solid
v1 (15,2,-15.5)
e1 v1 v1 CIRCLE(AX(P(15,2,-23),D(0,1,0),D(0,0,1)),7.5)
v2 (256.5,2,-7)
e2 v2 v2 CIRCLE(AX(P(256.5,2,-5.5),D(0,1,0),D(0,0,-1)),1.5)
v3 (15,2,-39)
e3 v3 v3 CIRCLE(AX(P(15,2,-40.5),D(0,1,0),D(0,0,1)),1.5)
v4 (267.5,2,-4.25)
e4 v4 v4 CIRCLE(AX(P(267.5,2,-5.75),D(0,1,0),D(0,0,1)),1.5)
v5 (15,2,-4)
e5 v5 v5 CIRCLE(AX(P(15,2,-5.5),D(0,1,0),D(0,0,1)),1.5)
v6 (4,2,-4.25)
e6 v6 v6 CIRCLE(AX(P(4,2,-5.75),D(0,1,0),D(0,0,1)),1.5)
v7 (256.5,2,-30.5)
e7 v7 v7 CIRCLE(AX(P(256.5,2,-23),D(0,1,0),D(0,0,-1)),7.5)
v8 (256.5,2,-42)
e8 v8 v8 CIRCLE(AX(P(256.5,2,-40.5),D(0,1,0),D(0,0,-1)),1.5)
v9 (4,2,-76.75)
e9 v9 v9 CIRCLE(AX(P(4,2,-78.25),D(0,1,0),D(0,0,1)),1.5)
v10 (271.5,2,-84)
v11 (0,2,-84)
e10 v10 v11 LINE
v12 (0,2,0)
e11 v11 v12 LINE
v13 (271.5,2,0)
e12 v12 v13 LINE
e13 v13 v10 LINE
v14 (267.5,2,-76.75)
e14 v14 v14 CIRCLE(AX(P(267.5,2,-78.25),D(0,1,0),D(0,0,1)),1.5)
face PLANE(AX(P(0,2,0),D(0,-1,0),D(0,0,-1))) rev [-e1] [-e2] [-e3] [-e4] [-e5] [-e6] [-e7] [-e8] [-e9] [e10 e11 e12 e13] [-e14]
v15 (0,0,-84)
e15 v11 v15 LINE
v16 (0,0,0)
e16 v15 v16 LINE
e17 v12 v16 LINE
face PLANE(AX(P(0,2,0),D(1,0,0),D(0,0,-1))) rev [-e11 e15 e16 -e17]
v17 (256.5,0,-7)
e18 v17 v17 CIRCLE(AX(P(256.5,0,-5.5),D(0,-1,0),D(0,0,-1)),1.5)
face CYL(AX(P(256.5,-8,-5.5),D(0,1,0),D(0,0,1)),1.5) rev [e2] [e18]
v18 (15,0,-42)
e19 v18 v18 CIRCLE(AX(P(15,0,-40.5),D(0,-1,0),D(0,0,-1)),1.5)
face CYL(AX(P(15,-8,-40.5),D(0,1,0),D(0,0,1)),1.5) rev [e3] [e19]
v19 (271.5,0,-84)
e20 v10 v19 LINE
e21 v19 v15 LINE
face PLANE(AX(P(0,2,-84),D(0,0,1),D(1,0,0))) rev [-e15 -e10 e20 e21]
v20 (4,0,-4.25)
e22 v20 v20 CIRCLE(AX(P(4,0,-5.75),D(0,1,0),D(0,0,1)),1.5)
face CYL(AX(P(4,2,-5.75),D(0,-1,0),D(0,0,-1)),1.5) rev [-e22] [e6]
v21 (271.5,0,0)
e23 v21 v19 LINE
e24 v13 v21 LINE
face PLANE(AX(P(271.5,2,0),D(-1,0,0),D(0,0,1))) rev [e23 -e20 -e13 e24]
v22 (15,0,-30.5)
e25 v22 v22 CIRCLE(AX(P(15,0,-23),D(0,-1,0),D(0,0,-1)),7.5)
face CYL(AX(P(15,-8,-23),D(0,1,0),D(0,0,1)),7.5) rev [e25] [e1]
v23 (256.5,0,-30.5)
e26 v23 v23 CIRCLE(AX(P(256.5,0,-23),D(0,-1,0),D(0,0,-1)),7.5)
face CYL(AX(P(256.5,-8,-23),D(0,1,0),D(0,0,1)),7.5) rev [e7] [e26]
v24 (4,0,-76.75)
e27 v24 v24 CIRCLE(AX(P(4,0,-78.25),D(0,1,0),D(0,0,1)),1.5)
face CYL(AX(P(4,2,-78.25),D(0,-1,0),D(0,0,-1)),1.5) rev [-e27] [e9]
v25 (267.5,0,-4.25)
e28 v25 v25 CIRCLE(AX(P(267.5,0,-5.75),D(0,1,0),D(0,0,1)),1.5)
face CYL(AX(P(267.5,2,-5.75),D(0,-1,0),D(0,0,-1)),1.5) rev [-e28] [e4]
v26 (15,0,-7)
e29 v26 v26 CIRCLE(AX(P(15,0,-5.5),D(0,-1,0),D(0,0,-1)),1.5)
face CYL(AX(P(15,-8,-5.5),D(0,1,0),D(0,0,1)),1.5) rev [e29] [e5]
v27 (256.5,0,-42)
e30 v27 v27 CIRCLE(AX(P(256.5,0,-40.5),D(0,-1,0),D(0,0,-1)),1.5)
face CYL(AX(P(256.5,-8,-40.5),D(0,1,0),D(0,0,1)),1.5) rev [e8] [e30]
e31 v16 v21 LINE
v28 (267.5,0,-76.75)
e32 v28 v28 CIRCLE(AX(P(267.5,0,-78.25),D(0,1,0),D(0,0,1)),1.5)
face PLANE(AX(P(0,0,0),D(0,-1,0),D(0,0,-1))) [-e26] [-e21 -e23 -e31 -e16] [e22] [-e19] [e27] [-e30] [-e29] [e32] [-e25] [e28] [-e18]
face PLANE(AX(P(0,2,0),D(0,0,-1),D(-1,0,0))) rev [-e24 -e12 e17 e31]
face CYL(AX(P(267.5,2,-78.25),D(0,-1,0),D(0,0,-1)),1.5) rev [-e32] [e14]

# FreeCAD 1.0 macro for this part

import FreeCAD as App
import Part
import Sketcher


def add_polygon(sketch, points):
    """Adds a closed chain of lines whose ends are joined by coincident constraints."""
    first, n = sketch.GeometryCount, len(points)
    for a, b in zip(points, points[1:] + points[:1]):
        sketch.addGeometry(Part.LineSegment(App.Vector(*a, 0), App.Vector(*b, 0)), False)
    for i in range(n):
        sketch.addConstraint(Sketcher.Constraint("Coincident", first + i, 2, first + (i + 1) % n, 1))

doc = App.newDocument("Part")
body = doc.addObject("PartDesign::Body", "Body")

sketch1 = body.newObject("Sketcher::SketchObject", "Sketch")
sketch1.AttachmentSupport = (doc.getObject("XZ_Plane"), [""])
sketch1.MapMode = "FlatFace"
add_polygon(sketch1, [(0, -84), (0, 0), (271.5, 0), (271.5, -84)])
sketch1.addGeometry(Part.Circle(App.Vector(4, -5.75, 0), App.Vector(0, 0, 1), 1.5), False)
sketch1.addGeometry(Part.Circle(App.Vector(267.5, -5.75, 0), App.Vector(0, 0, 1), 1.5), False)
sketch1.addGeometry(Part.Circle(App.Vector(4, -78.25, 0), App.Vector(0, 0, 1), 1.5), False)
sketch1.addGeometry(Part.Circle(App.Vector(267.5, -78.25, 0), App.Vector(0, 0, 1), 1.5), False)
sketch1.addConstraint([
    Sketcher.Constraint("Vertical", 0),
    Sketcher.Constraint("Horizontal", 1),
    Sketcher.Constraint("Vertical", 2),
    Sketcher.Constraint("Horizontal", 3),
    Sketcher.Constraint("Coincident", 0, 2, -1, 1),
    Sketcher.Constraint("Equal", 4, 5),
    Sketcher.Constraint("Equal", 5, 6),
    Sketcher.Constraint("Equal", 6, 7),
    Sketcher.Constraint("Horizontal", 4, 3, 5, 3),
    Sketcher.Constraint("Horizontal", 6, 3, 7, 3),
    Sketcher.Constraint("Vertical", 4, 3, 6, 3),
    Sketcher.Constraint("Vertical", 5, 3, 7, 3),
    Sketcher.Constraint("Diameter", 4, 3.0),
    Sketcher.Constraint("DistanceY", 0, 1, 0, 2, 84.0),
    Sketcher.Constraint("DistanceX", 1, 1, 1, 2, 271.5),
    Sketcher.Constraint("DistanceX", -1, 1, 4, 3, 4.0),
    Sketcher.Constraint("DistanceX", 5, 3, 1, 2, 4.0),
    Sketcher.Constraint("DistanceY", 6, 3, 4, 3, 72.5),
    Sketcher.Constraint("DistanceY", 4, 3, -1, 1, 5.75),
])
pad1 = body.newObject("PartDesign::Pad", "Pad")
pad1.Profile = sketch1
pad1.Length = 2
pad1.Reversed = True

sketch2 = body.newObject("Sketcher::SketchObject", "Sketch001")
sketch2.AttachmentSupport = (doc.getObject("XZ_Plane"), [""])
sketch2.MapMode = "FlatFace"
sketch2.AttachmentOffset = App.Placement(App.Vector(0, 0, -2), App.Rotation())
sketch2.addGeometry([
    Part.Circle(App.Vector(15, -5.5, 0), App.Vector(0, 0, 1), 1.5),
    Part.Circle(App.Vector(15, -40.5, 0), App.Vector(0, 0, 1), 1.5),
    Part.Circle(App.Vector(15, -23, 0), App.Vector(0, 0, 1), 7.5),
    Part.Circle(App.Vector(256.5, -23, 0), App.Vector(0, 0, 1), 7.5),
    Part.Circle(App.Vector(256.5, -40.5, 0), App.Vector(0, 0, 1), 1.5),
    Part.Circle(App.Vector(256.5, -5.5, 0), App.Vector(0, 0, 1), 1.5),
], False)
sketch2.addConstraint([
    Sketcher.Constraint("Equal", 0, 1),
    Sketcher.Constraint("Equal", 2, 3),
    Sketcher.Constraint("Equal", 1, 4),
    Sketcher.Constraint("Equal", 4, 5),
    Sketcher.Constraint("Horizontal", 2, 3, 3, 3),
    Sketcher.Constraint("Horizontal", 1, 3, 4, 3),
    Sketcher.Constraint("Horizontal", 0, 3, 5, 3),
    Sketcher.Constraint("Vertical", 0, 3, 1, 3),
    Sketcher.Constraint("Vertical", 1, 3, 2, 3),
    Sketcher.Constraint("Vertical", 3, 3, 4, 3),
    Sketcher.Constraint("Vertical", 4, 3, 5, 3),
    Sketcher.Constraint("Diameter", 0, 3.0),
    Sketcher.Constraint("Diameter", 2, 15.0),
    Sketcher.Constraint("DistanceX", -1, 1, 0, 3, 15.0),
    Sketcher.Constraint("DistanceY", 2, 3, -1, 1, 23.0),
    Sketcher.Constraint("DistanceY", 1, 3, 0, 3, 35.0),
    Sketcher.Constraint("DistanceY", 0, 3, -1, 1, 5.5),
    Sketcher.Constraint("DistanceX", -1, 1, 3, 3, 256.5),
])
pocket1 = body.newObject("PartDesign::Pocket", "Pocket")
pocket1.Profile = sketch2
pocket1.Length = 10
pocket1.Reversed = True

doc.recompute()
